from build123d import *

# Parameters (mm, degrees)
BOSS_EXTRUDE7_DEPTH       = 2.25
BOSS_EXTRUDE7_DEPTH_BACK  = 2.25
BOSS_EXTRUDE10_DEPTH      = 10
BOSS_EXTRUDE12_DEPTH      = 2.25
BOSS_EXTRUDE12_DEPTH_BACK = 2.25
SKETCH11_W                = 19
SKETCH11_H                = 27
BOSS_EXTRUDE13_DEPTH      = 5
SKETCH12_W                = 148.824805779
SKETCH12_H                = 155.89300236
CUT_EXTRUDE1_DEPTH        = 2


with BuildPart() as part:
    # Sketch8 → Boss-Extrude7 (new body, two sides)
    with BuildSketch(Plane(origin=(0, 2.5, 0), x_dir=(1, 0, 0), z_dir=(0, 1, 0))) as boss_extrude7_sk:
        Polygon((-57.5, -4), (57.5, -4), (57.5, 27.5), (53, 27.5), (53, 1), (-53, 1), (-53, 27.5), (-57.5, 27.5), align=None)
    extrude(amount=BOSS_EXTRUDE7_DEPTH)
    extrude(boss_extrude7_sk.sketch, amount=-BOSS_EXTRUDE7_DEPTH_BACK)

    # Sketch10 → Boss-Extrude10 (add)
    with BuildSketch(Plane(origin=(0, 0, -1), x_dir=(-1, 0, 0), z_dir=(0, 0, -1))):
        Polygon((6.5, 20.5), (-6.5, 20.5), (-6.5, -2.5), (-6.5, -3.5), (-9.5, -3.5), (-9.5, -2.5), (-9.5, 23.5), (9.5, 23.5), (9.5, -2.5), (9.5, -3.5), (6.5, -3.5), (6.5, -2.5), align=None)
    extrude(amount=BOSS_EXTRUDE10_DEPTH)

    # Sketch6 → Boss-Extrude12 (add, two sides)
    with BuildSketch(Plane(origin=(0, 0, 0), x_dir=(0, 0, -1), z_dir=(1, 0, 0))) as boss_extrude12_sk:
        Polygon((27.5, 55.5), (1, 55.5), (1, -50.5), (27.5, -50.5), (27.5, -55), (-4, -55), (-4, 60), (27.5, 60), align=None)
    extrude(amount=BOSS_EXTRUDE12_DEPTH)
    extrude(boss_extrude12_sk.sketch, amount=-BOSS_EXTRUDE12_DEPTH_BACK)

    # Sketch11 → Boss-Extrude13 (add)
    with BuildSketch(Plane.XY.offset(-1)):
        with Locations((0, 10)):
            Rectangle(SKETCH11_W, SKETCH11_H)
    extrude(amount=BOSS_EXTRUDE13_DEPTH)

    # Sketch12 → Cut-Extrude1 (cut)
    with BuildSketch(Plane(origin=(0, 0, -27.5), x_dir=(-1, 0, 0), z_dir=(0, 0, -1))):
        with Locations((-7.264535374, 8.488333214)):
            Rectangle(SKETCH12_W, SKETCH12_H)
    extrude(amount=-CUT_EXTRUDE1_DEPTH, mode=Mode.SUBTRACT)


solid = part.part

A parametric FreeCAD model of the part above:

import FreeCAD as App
import Part
import Sketcher

doc = App.newDocument("Part")
body = doc.addObject("PartDesign::Body", "Body")

sketch1 = doc.addObject("Sketcher::SketchObject", "Sketch")
body.addObject(sketch1)
sketch1.AttachmentSupport = (doc.XZ_Plane, [""])
sketch1.MapMode = "FlatFace"
sketch1.AttachmentOffset = App.Placement(App.Vector(0, 0, -2.5), App.Rotation())
sketch1.addGeometry(Part.LineSegment(App.Vector(-57.5, 4, 0), App.Vector(57.5, 4, 0)), False)
sketch1.addGeometry(Part.LineSegment(App.Vector(57.5, 4, 0), App.Vector(57.5, -27.5, 0)), False)
sketch1.addGeometry(Part.LineSegment(App.Vector(57.5, -27.5, 0), App.Vector(53, -27.5, 0)), False)
sketch1.addGeometry(Part.LineSegment(App.Vector(53, -27.5, 0), App.Vector(53, -1, 0)), False)
sketch1.addGeometry(Part.LineSegment(App.Vector(53, -1, 0), App.Vector(-53, -1, 0)), False)
sketch1.addGeometry(Part.LineSegment(App.Vector(-53, -1, 0), App.Vector(-53, -27.5, 0)), False)
sketch1.addGeometry(Part.LineSegment(App.Vector(-53, -27.5, 0), App.Vector(-57.5, -27.5, 0)), False)
sketch1.addGeometry(Part.LineSegment(App.Vector(-57.5, -27.5, 0), App.Vector(-57.5, 4, 0)), False)
sketch1.addConstraint(Sketcher.Constraint("Coincident", 0, 2, 1, 1))
sketch1.addConstraint(Sketcher.Constraint("Coincident", 1, 2, 2, 1))
sketch1.addConstraint(Sketcher.Constraint("Coincident", 2, 2, 3, 1))
sketch1.addConstraint(Sketcher.Constraint("Coincident", 3, 2, 4, 1))
sketch1.addConstraint(Sketcher.Constraint("Coincident", 4, 2, 5, 1))
sketch1.addConstraint(Sketcher.Constraint("Coincident", 5, 2, 6, 1))
sketch1.addConstraint(Sketcher.Constraint("Coincident", 6, 2, 7, 1))
sketch1.addConstraint(Sketcher.Constraint("Coincident", 7, 2, 0, 1))
sketch1.addConstraint(Sketcher.Constraint("Horizontal", 0))
sketch1.addConstraint(Sketcher.Constraint("Vertical", 1))
sketch1.addConstraint(Sketcher.Constraint("Horizontal", 2))
sketch1.addConstraint(Sketcher.Constraint("Vertical", 3))
sketch1.addConstraint(Sketcher.Constraint("Horizontal", 4))
sketch1.addConstraint(Sketcher.Constraint("Vertical", 5))
sketch1.addConstraint(Sketcher.Constraint("Horizontal", 6))
sketch1.addConstraint(Sketcher.Constraint("Vertical", 7))
sketch1.addConstraint(Sketcher.Constraint("Symmetric", 2, 2, 5, 2, -2))
sketch1.addConstraint(Sketcher.Constraint("Equal", 2, 6))
sketch1.addConstraint(Sketcher.Constraint("DistanceX", 0, 1, 0, 2, 115.0))
sketch1.addConstraint(Sketcher.Constraint("DistanceX", 4, 2, 4, 1, 106.0))
sketch1.addConstraint(Sketcher.Constraint("DistanceY", 1, 2, 1, 1, 31.5))
sketch1.addConstraint(Sketcher.Constraint("DistanceY", 3, 1, 3, 2, 26.5))
sketch1.addConstraint(Sketcher.Constraint("DistanceY", -1, 1, 0, 2, 4.0))
pad1 = doc.addObject("PartDesign::Pad", "Pad")
body.addObject(pad1)
pad1.Profile = sketch1
pad1.Type = "TwoLengths"
pad1.Length = 2.25
pad1.Length2 = 2.25
pad1.Reversed = True

sketch2 = doc.addObject("Sketcher::SketchObject", "Sketch001")
body.addObject(sketch2)
sketch2.AttachmentSupport = (doc.XY_Plane, [""])
sketch2.MapMode = "FlatFace"
sketch2.AttachmentOffset = App.Placement(App.Vector(0, 0, -1), App.Rotation())
sketch2.addGeometry(Part.LineSegment(App.Vector(6.5, 20.5, 0), App.Vector(-6.5, 20.5, 0)), False)
sketch2.addGeometry(Part.LineSegment(App.Vector(-6.5, 20.5, 0), App.Vector(-6.5, -3.5, 0)), False)
sketch2.addGeometry(Part.LineSegment(App.Vector(-6.5, -3.5, 0), App.Vector(-9.5, -3.5, 0)), False)
sketch2.addGeometry(Part.LineSegment(App.Vector(-9.5, -3.5, 0), App.Vector(-9.5, 23.5, 0)), False)
sketch2.addGeometry(Part.LineSegment(App.Vector(-9.5, 23.5, 0), App.Vector(9.5, 23.5, 0)), False)
sketch2.addGeometry(Part.LineSegment(App.Vector(9.5, 23.5, 0), App.Vector(9.5, -3.5, 0)), False)
sketch2.addGeometry(Part.LineSegment(App.Vector(9.5, -3.5, 0), App.Vector(6.5, -3.5, 0)), False)
sketch2.addGeometry(Part.LineSegment(App.Vector(6.5, -3.5, 0), App.Vector(6.5, 20.5, 0)), False)
sketch2.addConstraint(Sketcher.Constraint("Coincident", 0, 2, 1, 1))
sketch2.addConstraint(Sketcher.Constraint("Coincident", 1, 2, 2, 1))
sketch2.addConstraint(Sketcher.Constraint("Coincident", 2, 2, 3, 1))
sketch2.addConstraint(Sketcher.Constraint("Coincident", 3, 2, 4, 1))
sketch2.addConstraint(Sketcher.Constraint("Coincident", 4, 2, 5, 1))
sketch2.addConstraint(Sketcher.Constraint("Coincident", 5, 2, 6, 1))
sketch2.addConstraint(Sketcher.Constraint("Coincident", 6, 2, 7, 1))
sketch2.addConstraint(Sketcher.Constraint("Coincident", 7, 2, 0, 1))
sketch2.addConstraint(Sketcher.Constraint("Horizontal", 0))
sketch2.addConstraint(Sketcher.Constraint("Vertical", 1))
sketch2.addConstraint(Sketcher.Constraint("Horizontal", 2))
sketch2.addConstraint(Sketcher.Constraint("Vertical", 3))
sketch2.addConstraint(Sketcher.Constraint("Horizontal", 4))
sketch2.addConstraint(Sketcher.Constraint("Vertical", 5))
sketch2.addConstraint(Sketcher.Constraint("Horizontal", 6))
sketch2.addConstraint(Sketcher.Constraint("Vertical", 7))
sketch2.addConstraint(Sketcher.Constraint("Symmetric", 2, 2, 5, 2, -2))
sketch2.addConstraint(Sketcher.Constraint("Equal", 2, 6))
sketch2.addConstraint(Sketcher.Constraint("DistanceX", 0, 2, 0, 1, 13.0))
sketch2.addConstraint(Sketcher.Constraint("DistanceX", 2, 2, 2, 1, 3.0))
sketch2.addConstraint(Sketcher.Constraint("DistanceY", 1, 2, 1, 1, 24.0))
sketch2.addConstraint(Sketcher.Constraint("DistanceY", 3, 1, 3, 2, 27.0))
sketch2.addConstraint(Sketcher.Constraint("DistanceY", -1, 1, 0, 2, 20.5))
pad2 = doc.addObject("PartDesign::Pad", "Pad001")
body.addObject(pad2)
pad2.Profile = sketch2
pad2.Length = 10
pad2.Reversed = True

sketch3 = doc.addObject("Sketcher::SketchObject", "Sketch002")
body.addObject(sketch3)
sketch3.AttachmentSupport = (doc.YZ_Plane, [""])
sketch3.MapMode = "FlatFace"
sketch3.addGeometry(Part.LineSegment(App.Vector(55.5, -1, 0), App.Vector(55.5, -27.5, 0)), False)
sketch3.addGeometry(Part.LineSegment(App.Vector(55.5, -27.5, 0), App.Vector(60, -27.5, 0)), False)
sketch3.addGeometry(Part.LineSegment(App.Vector(60, -27.5, 0), App.Vector(60, 4, 0)), False)
sketch3.addGeometry(Part.LineSegment(App.Vector(60, 4, 0), App.Vector(-55, 4, 0)), False)
sketch3.addGeometry(Part.LineSegment(App.Vector(-55, 4, 0), App.Vector(-55, -27.5, 0)), False)
sketch3.addGeometry(Part.LineSegment(App.Vector(-55, -27.5, 0), App.Vector(-50.5, -27.5, 0)), False)
sketch3.addGeometry(Part.LineSegment(App.Vector(-50.5, -27.5, 0), App.Vector(-50.5, -1, 0)), False)
sketch3.addGeometry(Part.LineSegment(App.Vector(-50.5, -1, 0), App.Vector(55.5, -1, 0)), False)
sketch3.addConstraint(Sketcher.Constraint("Coincident", 0, 2, 1, 1))
sketch3.addConstraint(Sketcher.Constraint("Coincident", 1, 2, 2, 1))
sketch3.addConstraint(Sketcher.Constraint("Coincident", 2, 2, 3, 1))
sketch3.addConstraint(Sketcher.Constraint("Coincident", 3, 2, 4, 1))
sketch3.addConstraint(Sketcher.Constraint("Coincident", 4, 2, 5, 1))
sketch3.addConstraint(Sketcher.Constraint("Coincident", 5, 2, 6, 1))
sketch3.addConstraint(Sketcher.Constraint("Coincident", 6, 2, 7, 1))
sketch3.addConstraint(Sketcher.Constraint("Coincident", 7, 2, 0, 1))
sketch3.addConstraint(Sketcher.Constraint("Vertical", 0))
sketch3.addConstraint(Sketcher.Constraint("Horizontal", 1))
sketch3.addConstraint(Sketcher.Constraint("Vertical", 2))
sketch3.addConstraint(Sketcher.Constraint("Horizontal", 3))
sketch3.addConstraint(Sketcher.Constraint("Vertical", 4))
sketch3.addConstraint(Sketcher.Constraint("Horizontal", 5))
sketch3.addConstraint(Sketcher.Constraint("Vertical", 6))
sketch3.addConstraint(Sketcher.Constraint("Horizontal", 7))
sketch3.addConstraint(Sketcher.Constraint("Horizontal", 1, 2, 4, 2))
sketch3.addConstraint(Sketcher.Constraint("Equal", 1, 5))
sketch3.addConstraint(Sketcher.Constraint("DistanceX", 3, 2, 3, 1, 115.0))
sketch3.addConstraint(Sketcher.Constraint("DistanceX", 7, 1, 7, 2, 106.0))
sketch3.addConstraint(Sketcher.Constraint("DistanceY", 0, 2, 0, 1, 26.5))
sketch3.addConstraint(Sketcher.Constraint("DistanceY", 2, 1, 2, 2, 31.5))
sketch3.addConstraint(Sketcher.Constraint("DistanceX", -1, 1, 1, 2, 60.0))
sketch3.addConstraint(Sketcher.Constraint("DistanceY", -1, 1, 2, 2, 4.0))
pad3 = doc.addObject("PartDesign::Pad", "Pad002")
body.addObject(pad3)
pad3.Profile = sketch3
pad3.Type = "TwoLengths"
pad3.Length = 2.25
pad3.Length2 = 2.25

sketch4 = doc.addObject("Sketcher::SketchObject", "Sketch003")
body.addObject(sketch4)
sketch4.AttachmentSupport = (doc.XY_Plane, [""])
sketch4.MapMode = "FlatFace"
sketch4.AttachmentOffset = App.Placement(App.Vector(0, 0, -1), App.Rotation())
sketch4.addGeometry(Part.LineSegment(App.Vector(-10, 24, 0), App.Vector(-10, -4, 0)), False)
sketch4.addGeometry(Part.LineSegment(App.Vector(-10, -4, 0), App.Vector(10, -4, 0)), False)
sketch4.addGeometry(Part.LineSegment(App.Vector(10, -4, 0), App.Vector(10, 24, 0)), False)
sketch4.addGeometry(Part.LineSegment(App.Vector(10, 24, 0), App.Vector(-10, 24, 0)), False)
sketch4.addConstraint(Sketcher.Constraint("Coincident", 0, 2, 1, 1))
sketch4.addConstraint(Sketcher.Constraint("Coincident", 1, 2, 2, 1))
sketch4.addConstraint(Sketcher.Constraint("Coincident", 2, 2, 3, 1))
sketch4.addConstraint(Sketcher.Constraint("Coincident", 3, 2, 0, 1))
sketch4.addConstraint(Sketcher.Constraint("Vertical", 0))
sketch4.addConstraint(Sketcher.Constraint("Horizontal", 1))
sketch4.addConstraint(Sketcher.Constraint("Vertical", 2))
sketch4.addConstraint(Sketcher.Constraint("Horizontal", 3))
sketch4.addConstraint(Sketcher.Constraint("DistanceX", 1, 1, 1, 2, 19.0))
sketch4.addConstraint(Sketcher.Constraint("DistanceY", 0, 2, 0, 1, 27.0))
sketch4.addConstraint(Sketcher.Constraint("DistanceX", 0, 2, -1, 1, 9.5))
sketch4.addConstraint(Sketcher.Constraint("DistanceY", 0, 2, -1, 1, 3.5))
pad4 = doc.addObject("PartDesign::Pad", "Pad003")
body.addObject(pad4)
pad4.Profile = sketch4
pad4.Length = 5

sketch5 = doc.addObject("Sketcher::SketchObject", "Sketch004")
body.addObject(sketch5)
sketch5.AttachmentSupport = (doc.XY_Plane, [""])
sketch5.MapMode = "FlatFace"
sketch5.AttachmentOffset = App.Placement(App.Vector(0, 0, -27.5), App.Rotation())
sketch5.addGeometry(Part.LineSegment(App.Vector(82, 86, 0), App.Vector(82, -69, 0)), False)
sketch5.addGeometry(Part.LineSegment(App.Vector(82, -69, 0), App.Vector(-67, -69, 0)), False)
sketch5.addGeometry(Part.LineSegment(App.Vector(-67, -69, 0), App.Vector(-67, 86, 0)), False)
sketch5.addGeometry(Part.LineSegment(App.Vector(-67, 86, 0), App.Vector(82, 86, 0)), False)
sketch5.addConstraint(Sketcher.Constraint("Coincident", 0, 2, 1, 1))
sketch5.addConstraint(Sketcher.Constraint("Coincident", 1, 2, 2, 1))
sketch5.addConstraint(Sketcher.Constraint("Coincident", 2, 2, 3, 1))
sketch5.addConstraint(Sketcher.Constraint("Coincident", 3, 2, 0, 1))
sketch5.addConstraint(Sketcher.Constraint("Vertical", 0))
sketch5.addConstraint(Sketcher.Constraint("Horizontal", 1))
sketch5.addConstraint(Sketcher.Constraint("Vertical", 2))
sketch5.addConstraint(Sketcher.Constraint("Horizontal", 3))
sketch5.addConstraint(Sketcher.Constraint("DistanceX", 1, 2, 1, 1, 148.824806))
sketch5.addConstraint(Sketcher.Constraint("DistanceY", 0, 2, 0, 1, 155.893002))
sketch5.addConstraint(Sketcher.Constraint("DistanceX", -1, 1, 0, 2, 81.676938))
sketch5.addConstraint(Sketcher.Constraint("DistanceY", 0, 2, -1, 1, 69.458168))
pocket1 = doc.addObject("PartDesign::Pocket", "Pocket")
body.addObject(pocket1)
pocket1.Profile = sketch5
pocket1.Length = 2
pocket1.Reversed = True

doc.recompute()
